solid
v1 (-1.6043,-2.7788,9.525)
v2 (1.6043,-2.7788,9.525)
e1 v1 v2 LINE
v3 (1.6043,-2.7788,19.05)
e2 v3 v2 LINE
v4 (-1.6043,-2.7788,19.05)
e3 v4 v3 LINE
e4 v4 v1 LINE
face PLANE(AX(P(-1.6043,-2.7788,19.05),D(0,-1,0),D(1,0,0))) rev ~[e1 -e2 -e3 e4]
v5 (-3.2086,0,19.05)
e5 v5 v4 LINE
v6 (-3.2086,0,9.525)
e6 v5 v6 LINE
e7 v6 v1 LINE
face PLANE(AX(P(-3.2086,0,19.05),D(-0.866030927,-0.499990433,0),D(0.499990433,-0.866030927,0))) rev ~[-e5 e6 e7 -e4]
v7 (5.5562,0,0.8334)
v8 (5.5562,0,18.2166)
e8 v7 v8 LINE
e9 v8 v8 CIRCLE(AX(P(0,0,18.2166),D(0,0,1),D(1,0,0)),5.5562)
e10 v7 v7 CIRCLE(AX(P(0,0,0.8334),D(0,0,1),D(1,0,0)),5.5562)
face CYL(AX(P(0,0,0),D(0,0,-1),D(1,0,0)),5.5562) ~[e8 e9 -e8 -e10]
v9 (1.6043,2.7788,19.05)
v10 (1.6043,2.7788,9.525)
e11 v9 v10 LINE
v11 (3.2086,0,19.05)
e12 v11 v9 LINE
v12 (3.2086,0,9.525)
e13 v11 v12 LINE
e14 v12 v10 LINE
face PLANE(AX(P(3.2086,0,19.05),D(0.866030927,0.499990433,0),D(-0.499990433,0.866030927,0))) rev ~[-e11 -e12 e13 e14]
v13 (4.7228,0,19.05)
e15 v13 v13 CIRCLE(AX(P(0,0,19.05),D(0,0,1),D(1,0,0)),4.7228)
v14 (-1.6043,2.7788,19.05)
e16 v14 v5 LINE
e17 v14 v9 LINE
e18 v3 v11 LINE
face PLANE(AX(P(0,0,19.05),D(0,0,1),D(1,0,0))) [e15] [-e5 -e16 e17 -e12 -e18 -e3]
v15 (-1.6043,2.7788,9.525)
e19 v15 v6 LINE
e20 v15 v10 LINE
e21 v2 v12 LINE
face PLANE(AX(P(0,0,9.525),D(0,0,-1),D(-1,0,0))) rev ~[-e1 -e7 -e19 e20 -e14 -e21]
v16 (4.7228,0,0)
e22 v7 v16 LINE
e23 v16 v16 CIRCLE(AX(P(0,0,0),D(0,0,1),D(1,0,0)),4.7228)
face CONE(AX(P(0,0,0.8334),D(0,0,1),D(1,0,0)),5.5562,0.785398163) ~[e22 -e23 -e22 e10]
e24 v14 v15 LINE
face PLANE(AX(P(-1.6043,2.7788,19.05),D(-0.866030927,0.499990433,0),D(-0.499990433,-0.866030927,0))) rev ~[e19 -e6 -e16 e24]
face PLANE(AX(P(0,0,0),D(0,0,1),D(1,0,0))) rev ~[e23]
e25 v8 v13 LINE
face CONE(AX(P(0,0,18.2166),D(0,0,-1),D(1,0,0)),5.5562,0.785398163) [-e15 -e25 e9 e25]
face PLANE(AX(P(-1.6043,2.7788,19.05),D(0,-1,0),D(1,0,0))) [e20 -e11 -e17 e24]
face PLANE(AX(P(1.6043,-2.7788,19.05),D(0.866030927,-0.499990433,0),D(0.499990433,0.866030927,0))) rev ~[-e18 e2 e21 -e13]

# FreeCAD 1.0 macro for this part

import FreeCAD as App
import Part
import Sketcher
from FreeCAD import Vector
Q = App.Units.Quantity


def edges_at(feature, points):
    """Names of the edges that pass closest to the given points."""
    edges = feature.Shape.Edges
    near = lambda p: min(range(len(edges)), key=lambda i: edges[i].distToShape(Part.Vertex(*p))[0])
    return sorted({f"Edge{near(p) + 1}" for p in points})


def add_polygon(sketch, points):
    """Adds a closed chain of lines whose ends are joined by coincident constraints."""
    first, n = sketch.GeometryCount, len(points)
    for a, b in zip(points, points[1:] + points[:1]):
        sketch.addGeometry(Part.LineSegment(App.Vector(*a, 0), App.Vector(*b, 0)), False)
    for i in range(n):
        sketch.addConstraint(Sketcher.Constraint("Coincident", first + i, 2, first + (i + 1) % n, 1))

doc = App.newDocument("Part")
body = doc.addObject("PartDesign::Body", "Body")

# Sketch on XY plane
sketch1 = body.newObject("Sketcher::SketchObject", "Sketch")
sketch1.AttachmentSupport = (doc.getObject("XY_Plane"), [""])
sketch1.MapMode = "FlatFace"
sketch1.addGeometry(Part.Circle(Vector(0, 0, 0), Vector(0, 0, 1), 5.5562), False)
sketch1.addConstraint([
    Sketcher.Constraint("Coincident", 0, 3, -1, 1),
    Sketcher.Constraint("Diameter", 0, Q("0.4375 in")),
])
pad1 = body.newObject("PartDesign::Pad", "Pad")
pad1.Profile = sketch1
pad1.Length = Q("0.75 in")
doc.recompute()

chamfer = body.newObject("PartDesign::Chamfer", "Chamfer")
chamfer.Base = (pad1, edges_at(pad1, [(-5.556, 0, 0), (-5.556, 0, 19.05)]))
chamfer.Size = Q("0.032811 in")

# Sketch on XY plane
sketch2 = body.newObject("Sketcher::SketchObject", "Sketch001")
sketch2.AttachmentSupport = (doc.getObject("XY_Plane"), [""])
sketch2.MapMode = "FlatFace"
sketch2.AttachmentOffset = App.Placement(Vector(0, 0, 0.75 * 25.4), App.Rotation())
add_polygon(sketch2, [(1.6043, 2.7788), (-1.6043, 2.7788), (-3.2086, 0), (-1.6043, -2.7788), (1.6043, -2.7788), (3.2086, 0)])  # lines 0-5
sketch2.addConstraint([
    Sketcher.Constraint("Horizontal", 0),
    Sketcher.Constraint("Horizontal", 3),
    Sketcher.Constraint("Symmetric", 0, 2, 3, 2, -1, 1),
    Sketcher.Constraint("Symmetric", 1, 2, 4, 2, -1, 1),
    Sketcher.Constraint("PointOnObject", 1, 2, -1),
    Sketcher.Constraint("Parallel", 2, 5),
    Sketcher.Constraint("Vertical", 0, 2, 2, 2),
    Sketcher.Constraint("Angle", 1, Q("-119.9994 deg")),
    Sketcher.Constraint("DistanceX", 0, 2, 0, 1, Q("3.2086 mm")),
    Sketcher.Constraint("DistanceY", -1, 1, 0, 2, Q("0.1094 in")),
])
pocket1 = body.newObject("PartDesign::Pocket", "Pocket")
pocket1.Profile = sketch2
pocket1.Length = Q("0.375 in")

doc.recompute()
